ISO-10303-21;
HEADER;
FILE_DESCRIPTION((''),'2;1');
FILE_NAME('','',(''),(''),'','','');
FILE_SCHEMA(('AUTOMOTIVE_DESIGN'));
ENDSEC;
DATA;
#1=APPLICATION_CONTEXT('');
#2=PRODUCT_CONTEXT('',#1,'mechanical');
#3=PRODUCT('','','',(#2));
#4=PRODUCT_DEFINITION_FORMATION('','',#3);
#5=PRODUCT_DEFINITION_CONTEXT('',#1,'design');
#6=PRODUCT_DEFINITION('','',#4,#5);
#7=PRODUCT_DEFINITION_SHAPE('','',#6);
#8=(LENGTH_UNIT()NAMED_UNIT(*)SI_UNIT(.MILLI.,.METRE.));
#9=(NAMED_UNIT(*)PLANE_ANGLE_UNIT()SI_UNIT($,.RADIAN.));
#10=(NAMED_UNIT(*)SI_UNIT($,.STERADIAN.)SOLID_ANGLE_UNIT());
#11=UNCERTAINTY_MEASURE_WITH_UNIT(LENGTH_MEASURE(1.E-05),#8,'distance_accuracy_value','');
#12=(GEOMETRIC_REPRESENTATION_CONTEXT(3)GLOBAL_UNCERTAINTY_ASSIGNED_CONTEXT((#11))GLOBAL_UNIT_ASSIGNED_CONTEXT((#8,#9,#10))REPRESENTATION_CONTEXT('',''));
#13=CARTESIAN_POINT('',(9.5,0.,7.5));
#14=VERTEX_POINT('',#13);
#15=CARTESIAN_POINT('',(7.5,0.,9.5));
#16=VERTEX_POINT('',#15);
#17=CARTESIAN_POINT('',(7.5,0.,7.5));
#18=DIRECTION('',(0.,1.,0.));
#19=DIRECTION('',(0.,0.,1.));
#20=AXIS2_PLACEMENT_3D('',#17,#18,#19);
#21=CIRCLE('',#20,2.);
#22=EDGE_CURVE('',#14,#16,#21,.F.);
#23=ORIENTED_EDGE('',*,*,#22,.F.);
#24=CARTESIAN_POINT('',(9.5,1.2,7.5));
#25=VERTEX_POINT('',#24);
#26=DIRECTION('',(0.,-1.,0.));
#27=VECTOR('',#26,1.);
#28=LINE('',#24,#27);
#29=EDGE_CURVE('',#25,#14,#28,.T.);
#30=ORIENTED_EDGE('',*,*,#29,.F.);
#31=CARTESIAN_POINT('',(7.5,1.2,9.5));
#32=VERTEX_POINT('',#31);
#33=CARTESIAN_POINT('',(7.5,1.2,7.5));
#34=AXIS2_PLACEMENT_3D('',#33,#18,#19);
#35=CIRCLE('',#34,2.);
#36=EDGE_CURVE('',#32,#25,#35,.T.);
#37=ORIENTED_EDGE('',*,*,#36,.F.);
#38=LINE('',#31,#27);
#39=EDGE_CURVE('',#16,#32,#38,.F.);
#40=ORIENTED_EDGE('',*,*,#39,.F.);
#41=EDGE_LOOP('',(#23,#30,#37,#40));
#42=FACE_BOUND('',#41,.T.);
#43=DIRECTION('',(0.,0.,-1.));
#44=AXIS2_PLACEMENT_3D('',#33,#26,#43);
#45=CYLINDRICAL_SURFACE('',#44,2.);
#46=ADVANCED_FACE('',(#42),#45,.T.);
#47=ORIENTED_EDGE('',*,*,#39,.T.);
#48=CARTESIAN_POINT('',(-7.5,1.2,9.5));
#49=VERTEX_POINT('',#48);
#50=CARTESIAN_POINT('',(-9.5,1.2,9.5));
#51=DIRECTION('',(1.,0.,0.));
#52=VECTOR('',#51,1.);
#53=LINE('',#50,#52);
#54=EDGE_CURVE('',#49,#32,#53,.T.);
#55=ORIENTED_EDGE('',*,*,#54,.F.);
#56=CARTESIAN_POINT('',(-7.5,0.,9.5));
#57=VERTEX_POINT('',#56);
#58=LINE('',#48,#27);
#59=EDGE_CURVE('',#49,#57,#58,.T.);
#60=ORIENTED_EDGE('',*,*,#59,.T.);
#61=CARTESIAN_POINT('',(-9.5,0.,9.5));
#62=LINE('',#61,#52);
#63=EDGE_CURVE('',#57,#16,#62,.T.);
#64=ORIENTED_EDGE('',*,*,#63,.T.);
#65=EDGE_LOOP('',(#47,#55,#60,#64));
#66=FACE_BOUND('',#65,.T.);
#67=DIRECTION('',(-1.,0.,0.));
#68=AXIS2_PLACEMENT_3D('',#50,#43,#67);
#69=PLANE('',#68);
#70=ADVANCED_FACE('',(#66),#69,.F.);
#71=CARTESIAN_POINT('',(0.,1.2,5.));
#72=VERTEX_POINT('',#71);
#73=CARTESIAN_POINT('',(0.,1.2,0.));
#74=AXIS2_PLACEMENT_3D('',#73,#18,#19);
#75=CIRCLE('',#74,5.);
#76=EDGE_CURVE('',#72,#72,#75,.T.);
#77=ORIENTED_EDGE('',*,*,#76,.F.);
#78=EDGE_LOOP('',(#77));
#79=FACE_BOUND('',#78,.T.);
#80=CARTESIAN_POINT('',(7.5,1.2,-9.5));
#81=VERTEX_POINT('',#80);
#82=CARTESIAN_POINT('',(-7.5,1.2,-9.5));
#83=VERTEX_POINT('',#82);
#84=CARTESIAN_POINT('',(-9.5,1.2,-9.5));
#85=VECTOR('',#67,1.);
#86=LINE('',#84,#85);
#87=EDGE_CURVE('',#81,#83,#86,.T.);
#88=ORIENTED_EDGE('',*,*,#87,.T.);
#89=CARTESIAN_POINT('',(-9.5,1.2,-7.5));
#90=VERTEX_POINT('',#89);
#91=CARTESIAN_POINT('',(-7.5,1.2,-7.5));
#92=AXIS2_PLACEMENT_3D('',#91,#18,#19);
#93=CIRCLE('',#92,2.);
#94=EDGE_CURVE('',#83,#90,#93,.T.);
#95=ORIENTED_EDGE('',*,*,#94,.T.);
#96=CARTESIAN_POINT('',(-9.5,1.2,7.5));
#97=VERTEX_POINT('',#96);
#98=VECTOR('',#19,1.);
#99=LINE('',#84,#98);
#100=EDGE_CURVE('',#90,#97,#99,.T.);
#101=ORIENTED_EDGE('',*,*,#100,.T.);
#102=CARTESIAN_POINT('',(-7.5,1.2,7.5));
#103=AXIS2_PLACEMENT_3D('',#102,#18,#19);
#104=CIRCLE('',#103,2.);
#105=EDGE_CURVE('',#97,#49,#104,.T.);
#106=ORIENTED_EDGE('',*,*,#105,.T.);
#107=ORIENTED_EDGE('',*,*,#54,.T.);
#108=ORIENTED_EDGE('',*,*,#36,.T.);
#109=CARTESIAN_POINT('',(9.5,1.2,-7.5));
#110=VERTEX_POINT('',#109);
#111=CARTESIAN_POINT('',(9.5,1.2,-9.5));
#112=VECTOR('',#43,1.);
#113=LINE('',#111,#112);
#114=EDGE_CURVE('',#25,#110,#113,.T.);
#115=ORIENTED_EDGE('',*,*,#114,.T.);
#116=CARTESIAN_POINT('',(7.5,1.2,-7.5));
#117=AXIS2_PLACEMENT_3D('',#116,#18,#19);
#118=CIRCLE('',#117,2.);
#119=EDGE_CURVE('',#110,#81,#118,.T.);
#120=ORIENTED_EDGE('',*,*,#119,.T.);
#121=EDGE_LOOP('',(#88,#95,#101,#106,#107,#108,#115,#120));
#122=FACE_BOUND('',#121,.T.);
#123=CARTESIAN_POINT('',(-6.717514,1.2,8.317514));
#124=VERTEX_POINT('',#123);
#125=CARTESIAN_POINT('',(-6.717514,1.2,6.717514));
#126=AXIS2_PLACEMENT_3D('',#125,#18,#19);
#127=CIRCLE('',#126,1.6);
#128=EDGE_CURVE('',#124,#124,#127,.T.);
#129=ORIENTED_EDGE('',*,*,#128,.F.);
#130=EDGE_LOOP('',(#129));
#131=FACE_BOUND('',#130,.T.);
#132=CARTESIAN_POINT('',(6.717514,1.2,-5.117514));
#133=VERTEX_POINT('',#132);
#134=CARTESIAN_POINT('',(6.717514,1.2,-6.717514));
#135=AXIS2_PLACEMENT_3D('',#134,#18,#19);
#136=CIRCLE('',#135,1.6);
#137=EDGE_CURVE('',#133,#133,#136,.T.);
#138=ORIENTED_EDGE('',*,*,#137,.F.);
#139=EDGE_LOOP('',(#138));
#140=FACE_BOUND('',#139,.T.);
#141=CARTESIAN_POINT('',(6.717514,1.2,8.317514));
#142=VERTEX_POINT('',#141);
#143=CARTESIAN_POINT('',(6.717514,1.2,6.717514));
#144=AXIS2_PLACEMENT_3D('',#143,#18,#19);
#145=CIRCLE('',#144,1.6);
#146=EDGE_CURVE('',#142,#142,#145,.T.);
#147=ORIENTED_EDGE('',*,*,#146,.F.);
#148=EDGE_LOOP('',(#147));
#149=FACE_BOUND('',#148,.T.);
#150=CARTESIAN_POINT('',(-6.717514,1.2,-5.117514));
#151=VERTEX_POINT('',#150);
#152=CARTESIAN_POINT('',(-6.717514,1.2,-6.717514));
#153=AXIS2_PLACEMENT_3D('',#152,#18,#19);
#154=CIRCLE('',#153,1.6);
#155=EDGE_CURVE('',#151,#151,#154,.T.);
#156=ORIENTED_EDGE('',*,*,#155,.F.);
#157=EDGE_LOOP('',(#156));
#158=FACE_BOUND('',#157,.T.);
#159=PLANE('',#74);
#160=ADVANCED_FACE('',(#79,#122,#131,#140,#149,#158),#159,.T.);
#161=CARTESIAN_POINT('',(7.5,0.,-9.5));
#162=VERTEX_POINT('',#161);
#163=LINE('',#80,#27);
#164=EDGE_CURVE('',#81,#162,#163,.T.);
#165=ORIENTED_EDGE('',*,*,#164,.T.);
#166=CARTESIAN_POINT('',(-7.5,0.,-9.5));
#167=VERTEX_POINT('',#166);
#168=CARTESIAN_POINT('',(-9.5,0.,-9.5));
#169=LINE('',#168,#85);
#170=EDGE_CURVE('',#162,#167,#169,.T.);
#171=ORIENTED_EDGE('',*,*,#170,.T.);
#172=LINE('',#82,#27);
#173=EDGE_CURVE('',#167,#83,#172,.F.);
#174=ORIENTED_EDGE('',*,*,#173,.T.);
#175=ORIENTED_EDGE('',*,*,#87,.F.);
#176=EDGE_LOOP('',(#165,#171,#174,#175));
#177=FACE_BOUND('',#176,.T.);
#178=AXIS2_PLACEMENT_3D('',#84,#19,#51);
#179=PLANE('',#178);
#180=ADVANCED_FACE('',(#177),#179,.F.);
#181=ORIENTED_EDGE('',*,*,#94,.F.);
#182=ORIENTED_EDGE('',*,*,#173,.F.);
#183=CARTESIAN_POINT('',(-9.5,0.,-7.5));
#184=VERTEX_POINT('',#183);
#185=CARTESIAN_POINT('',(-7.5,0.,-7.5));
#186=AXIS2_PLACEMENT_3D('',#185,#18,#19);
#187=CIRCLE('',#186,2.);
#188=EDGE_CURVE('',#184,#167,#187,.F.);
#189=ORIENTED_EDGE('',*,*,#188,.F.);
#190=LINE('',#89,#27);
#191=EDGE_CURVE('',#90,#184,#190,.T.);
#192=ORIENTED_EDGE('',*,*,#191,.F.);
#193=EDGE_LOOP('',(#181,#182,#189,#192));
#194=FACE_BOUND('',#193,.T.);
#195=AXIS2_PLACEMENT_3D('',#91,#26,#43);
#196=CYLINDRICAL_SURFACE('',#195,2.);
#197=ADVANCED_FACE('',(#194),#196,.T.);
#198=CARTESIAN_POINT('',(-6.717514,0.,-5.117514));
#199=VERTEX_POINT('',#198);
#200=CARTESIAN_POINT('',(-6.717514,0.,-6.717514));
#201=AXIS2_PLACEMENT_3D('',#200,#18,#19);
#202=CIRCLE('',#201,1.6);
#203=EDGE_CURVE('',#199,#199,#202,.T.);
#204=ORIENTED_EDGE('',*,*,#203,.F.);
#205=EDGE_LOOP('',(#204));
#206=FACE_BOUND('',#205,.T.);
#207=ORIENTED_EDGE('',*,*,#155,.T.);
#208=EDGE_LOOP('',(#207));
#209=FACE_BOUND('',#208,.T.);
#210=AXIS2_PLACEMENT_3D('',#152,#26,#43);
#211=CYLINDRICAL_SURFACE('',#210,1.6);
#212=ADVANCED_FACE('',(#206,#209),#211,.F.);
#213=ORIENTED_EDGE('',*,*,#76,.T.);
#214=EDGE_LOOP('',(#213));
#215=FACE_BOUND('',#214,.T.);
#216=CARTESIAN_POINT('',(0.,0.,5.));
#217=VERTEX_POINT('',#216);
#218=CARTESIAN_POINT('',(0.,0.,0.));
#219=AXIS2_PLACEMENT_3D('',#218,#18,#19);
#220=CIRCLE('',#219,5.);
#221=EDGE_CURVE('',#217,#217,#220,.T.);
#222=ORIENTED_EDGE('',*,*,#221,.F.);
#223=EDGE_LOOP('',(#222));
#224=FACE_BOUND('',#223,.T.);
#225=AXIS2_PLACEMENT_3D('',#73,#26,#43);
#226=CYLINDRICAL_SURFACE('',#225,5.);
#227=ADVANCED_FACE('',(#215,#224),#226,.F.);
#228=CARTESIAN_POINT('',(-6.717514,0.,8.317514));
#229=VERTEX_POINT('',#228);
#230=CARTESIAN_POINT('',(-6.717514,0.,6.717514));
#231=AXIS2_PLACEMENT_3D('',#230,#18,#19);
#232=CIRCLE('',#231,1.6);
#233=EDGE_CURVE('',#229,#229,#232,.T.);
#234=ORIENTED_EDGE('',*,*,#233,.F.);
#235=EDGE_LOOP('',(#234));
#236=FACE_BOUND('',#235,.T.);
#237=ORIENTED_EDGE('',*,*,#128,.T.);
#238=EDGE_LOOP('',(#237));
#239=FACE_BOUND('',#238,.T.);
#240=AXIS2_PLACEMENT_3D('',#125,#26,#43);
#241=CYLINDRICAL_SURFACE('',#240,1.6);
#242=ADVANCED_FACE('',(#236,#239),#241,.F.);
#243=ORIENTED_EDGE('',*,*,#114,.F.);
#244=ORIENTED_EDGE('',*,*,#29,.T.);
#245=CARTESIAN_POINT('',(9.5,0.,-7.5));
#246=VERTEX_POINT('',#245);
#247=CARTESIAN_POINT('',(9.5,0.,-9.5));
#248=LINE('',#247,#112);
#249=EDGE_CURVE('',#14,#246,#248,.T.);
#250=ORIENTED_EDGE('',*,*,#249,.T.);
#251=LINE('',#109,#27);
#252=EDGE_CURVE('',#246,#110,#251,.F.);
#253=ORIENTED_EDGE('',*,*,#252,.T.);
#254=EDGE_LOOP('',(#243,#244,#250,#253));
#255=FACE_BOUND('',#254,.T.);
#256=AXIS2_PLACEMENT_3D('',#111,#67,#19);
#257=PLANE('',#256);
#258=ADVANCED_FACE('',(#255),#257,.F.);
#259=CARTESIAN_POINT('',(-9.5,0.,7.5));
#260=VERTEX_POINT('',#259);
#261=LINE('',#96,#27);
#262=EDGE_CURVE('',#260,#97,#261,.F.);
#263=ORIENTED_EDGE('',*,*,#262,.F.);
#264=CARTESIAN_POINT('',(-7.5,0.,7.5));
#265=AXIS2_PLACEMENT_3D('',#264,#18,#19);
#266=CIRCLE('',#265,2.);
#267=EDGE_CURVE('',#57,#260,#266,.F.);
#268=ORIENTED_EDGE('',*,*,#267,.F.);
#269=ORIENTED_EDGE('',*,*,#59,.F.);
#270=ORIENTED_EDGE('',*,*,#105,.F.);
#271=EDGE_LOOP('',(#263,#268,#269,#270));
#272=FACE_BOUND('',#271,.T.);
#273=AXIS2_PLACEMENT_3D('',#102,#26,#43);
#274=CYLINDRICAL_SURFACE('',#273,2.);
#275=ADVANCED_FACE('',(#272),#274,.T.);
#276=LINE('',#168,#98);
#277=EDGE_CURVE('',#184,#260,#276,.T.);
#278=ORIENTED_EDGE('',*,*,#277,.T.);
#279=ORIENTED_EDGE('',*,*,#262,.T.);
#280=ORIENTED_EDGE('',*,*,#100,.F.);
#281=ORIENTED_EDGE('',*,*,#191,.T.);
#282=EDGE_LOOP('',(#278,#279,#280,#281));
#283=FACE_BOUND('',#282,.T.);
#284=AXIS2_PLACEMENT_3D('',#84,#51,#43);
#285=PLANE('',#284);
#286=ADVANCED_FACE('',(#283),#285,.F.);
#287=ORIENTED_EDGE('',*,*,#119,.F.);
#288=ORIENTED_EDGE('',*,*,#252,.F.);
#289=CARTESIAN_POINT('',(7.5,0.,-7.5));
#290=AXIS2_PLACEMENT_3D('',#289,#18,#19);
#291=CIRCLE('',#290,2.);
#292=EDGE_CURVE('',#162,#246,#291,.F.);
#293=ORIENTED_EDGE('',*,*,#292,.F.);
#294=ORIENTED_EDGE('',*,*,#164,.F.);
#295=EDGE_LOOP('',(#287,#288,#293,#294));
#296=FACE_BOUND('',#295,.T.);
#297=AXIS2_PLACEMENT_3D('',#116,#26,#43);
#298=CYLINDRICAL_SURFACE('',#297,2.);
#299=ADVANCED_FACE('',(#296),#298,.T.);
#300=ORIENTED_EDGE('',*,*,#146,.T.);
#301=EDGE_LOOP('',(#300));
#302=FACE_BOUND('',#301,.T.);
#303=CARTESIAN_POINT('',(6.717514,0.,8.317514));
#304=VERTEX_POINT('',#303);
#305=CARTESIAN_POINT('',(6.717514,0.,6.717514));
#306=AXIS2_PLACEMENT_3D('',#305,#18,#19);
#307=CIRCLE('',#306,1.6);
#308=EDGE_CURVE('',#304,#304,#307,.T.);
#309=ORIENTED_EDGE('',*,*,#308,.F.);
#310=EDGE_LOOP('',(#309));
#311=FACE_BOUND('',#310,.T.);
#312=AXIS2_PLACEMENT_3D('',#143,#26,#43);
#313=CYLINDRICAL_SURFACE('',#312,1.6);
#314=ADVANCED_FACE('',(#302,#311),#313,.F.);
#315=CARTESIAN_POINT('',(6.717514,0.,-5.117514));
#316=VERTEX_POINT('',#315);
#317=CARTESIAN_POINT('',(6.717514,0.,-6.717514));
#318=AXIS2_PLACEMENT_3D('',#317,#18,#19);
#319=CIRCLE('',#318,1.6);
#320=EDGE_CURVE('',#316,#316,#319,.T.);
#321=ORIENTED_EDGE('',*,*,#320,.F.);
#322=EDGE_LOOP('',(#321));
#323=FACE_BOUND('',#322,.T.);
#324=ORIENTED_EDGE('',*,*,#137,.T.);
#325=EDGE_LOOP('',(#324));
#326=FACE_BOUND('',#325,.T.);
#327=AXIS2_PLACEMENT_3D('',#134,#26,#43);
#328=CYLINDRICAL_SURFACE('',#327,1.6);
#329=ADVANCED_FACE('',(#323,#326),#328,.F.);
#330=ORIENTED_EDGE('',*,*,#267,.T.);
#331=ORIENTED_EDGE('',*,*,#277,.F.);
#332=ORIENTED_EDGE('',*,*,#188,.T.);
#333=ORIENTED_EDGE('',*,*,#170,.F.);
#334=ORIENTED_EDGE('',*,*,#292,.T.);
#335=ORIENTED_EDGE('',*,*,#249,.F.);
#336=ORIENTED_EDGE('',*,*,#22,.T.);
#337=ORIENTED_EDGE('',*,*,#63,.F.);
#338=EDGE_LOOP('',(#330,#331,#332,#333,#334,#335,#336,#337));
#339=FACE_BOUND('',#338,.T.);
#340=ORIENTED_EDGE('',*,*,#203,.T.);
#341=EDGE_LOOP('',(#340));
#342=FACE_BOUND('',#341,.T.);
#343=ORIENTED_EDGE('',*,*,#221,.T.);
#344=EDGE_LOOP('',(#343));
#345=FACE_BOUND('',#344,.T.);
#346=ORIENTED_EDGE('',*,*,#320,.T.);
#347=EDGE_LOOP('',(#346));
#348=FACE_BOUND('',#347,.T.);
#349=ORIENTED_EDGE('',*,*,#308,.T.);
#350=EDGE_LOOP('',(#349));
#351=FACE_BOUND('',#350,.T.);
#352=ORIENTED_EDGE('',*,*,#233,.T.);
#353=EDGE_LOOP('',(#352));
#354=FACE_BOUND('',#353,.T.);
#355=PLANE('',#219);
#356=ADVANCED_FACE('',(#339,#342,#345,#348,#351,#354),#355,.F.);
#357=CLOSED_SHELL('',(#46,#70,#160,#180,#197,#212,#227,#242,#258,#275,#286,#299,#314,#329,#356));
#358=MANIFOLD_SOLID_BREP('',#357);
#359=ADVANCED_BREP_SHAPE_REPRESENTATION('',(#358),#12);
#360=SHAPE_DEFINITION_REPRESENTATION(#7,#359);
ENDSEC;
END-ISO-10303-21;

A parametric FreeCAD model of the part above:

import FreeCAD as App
import Part
import Sketcher

V = App.Vector
Q = App.Units.Quantity


def edges_at(feature, points):
    """Names of the edges that pass closest to the given points."""
    edges = feature.Shape.Edges
    near = lambda p: min(range(len(edges)), key=lambda i: edges[i].distToShape(Part.Vertex(*p))[0])
    return sorted({f"Edge{near(p) + 1}" for p in points})


def add_polygon(sketch, points):
    """Adds a closed chain of lines whose ends are joined by coincident constraints."""
    first, n = sketch.GeometryCount, len(points)
    for a, b in zip(points, points[1:] + points[:1]):
        sketch.addGeometry(Part.LineSegment(App.Vector(*a, 0), App.Vector(*b, 0)), False)
    for i in range(n):
        sketch.addConstraint(Sketcher.Constraint("Coincident", first + i, 2, first + (i + 1) % n, 1))

doc = App.newDocument("Part")
body = doc.addObject("PartDesign::Body", "Body")

sketch1 = doc.addObject("Sketcher::SketchObject", "Sketch")
body.addObject(sketch1)
sketch1.AttachmentSupport = (doc.XZ_Plane, [""])
sketch1.MapMode = "FlatFace"
add_polygon(sketch1, [(-9.5, -9.5), (-9.5, 9.5), (9.5, 9.5), (9.5, -9.5)])
sketch1.addGeometry(Part.Circle(V(-6.7, 6.7, 0), V(0, 0, 1), 1.6), False)
sketch1.addGeometry(Part.Circle(V(6.7, 6.7, 0), V(0, 0, 1), 1.6), False)
sketch1.addGeometry(Part.Circle(V(-6.7, -6.7, 0), V(0, 0, 1), 1.6), False)
sketch1.addGeometry(Part.Circle(V(0, 0, 0), V(0, 0, 1), 5), False)
sketch1.addGeometry(Part.Circle(V(6.7, -6.7, 0), V(0, 0, 1), 1.6), False)
sketch1.addConstraint(Sketcher.Constraint("Vertical", 0))
sketch1.addConstraint(Sketcher.Constraint("Horizontal", 1))
sketch1.addConstraint(Sketcher.Constraint("Vertical", 2))
sketch1.addConstraint(Sketcher.Constraint("Horizontal", 3))
sketch1.addConstraint(Sketcher.Constraint("Coincident", 7, 3, -1, 1))
sketch1.addConstraint(Sketcher.Constraint("Equal", 4, 5))
sketch1.addConstraint(Sketcher.Constraint("Equal", 5, 6))
sketch1.addConstraint(Sketcher.Constraint("Equal", 6, 8))
sketch1.addConstraint(Sketcher.Constraint("Symmetric", 5, 3, 6, 3, -1, 1))
sketch1.addConstraint(Sketcher.Constraint("Symmetric", 4, 3, 8, 3, -1, 1))
sketch1.addConstraint(Sketcher.Constraint("Symmetric", 0, 2, 2, 2, -1, 1))
sketch1.addConstraint(Sketcher.Constraint("Symmetric", 4, 3, 5, 3, -2))
sketch1.addConstraint(Sketcher.Constraint("Equal", 3, 0))
sketch1.addConstraint(Sketcher.Constraint("Diameter", 7, Q("10 mm")))
sketch1.addConstraint(Sketcher.Constraint("Diameter", 4, Q("3.2 mm")))
sketch1.addConstraint(Sketcher.Constraint("DistanceX", 1, 1, 1, 2, Q("19 mm")))
sketch1.addConstraint(Sketcher.Constraint("DistanceX", 4, 3, 5, 3, Q("13.435029 mm")))
sketch1.addConstraint(Sketcher.Constraint("DistanceY", 6, 3, 4, 3, Q("13.435029 mm")))
pad1 = doc.addObject("PartDesign::Pad", "Pad")
body.addObject(pad1)
pad1.Profile = sketch1
pad1.Length = 1.2
pad1.Reversed = True
doc.recompute()

fillet = doc.addObject("PartDesign::Fillet", "Fillet")
body.addObject(fillet)
fillet.Base = (pad1, edges_at(pad1, [
    (-9.5, 0.6, -9.5),
    (9.5, 0.6, -9.5),
    (9.5, 0.6, 9.5),
    (-9.5, 0.6, 9.5),
]))
fillet.Radius = 2

doc.recompute()
